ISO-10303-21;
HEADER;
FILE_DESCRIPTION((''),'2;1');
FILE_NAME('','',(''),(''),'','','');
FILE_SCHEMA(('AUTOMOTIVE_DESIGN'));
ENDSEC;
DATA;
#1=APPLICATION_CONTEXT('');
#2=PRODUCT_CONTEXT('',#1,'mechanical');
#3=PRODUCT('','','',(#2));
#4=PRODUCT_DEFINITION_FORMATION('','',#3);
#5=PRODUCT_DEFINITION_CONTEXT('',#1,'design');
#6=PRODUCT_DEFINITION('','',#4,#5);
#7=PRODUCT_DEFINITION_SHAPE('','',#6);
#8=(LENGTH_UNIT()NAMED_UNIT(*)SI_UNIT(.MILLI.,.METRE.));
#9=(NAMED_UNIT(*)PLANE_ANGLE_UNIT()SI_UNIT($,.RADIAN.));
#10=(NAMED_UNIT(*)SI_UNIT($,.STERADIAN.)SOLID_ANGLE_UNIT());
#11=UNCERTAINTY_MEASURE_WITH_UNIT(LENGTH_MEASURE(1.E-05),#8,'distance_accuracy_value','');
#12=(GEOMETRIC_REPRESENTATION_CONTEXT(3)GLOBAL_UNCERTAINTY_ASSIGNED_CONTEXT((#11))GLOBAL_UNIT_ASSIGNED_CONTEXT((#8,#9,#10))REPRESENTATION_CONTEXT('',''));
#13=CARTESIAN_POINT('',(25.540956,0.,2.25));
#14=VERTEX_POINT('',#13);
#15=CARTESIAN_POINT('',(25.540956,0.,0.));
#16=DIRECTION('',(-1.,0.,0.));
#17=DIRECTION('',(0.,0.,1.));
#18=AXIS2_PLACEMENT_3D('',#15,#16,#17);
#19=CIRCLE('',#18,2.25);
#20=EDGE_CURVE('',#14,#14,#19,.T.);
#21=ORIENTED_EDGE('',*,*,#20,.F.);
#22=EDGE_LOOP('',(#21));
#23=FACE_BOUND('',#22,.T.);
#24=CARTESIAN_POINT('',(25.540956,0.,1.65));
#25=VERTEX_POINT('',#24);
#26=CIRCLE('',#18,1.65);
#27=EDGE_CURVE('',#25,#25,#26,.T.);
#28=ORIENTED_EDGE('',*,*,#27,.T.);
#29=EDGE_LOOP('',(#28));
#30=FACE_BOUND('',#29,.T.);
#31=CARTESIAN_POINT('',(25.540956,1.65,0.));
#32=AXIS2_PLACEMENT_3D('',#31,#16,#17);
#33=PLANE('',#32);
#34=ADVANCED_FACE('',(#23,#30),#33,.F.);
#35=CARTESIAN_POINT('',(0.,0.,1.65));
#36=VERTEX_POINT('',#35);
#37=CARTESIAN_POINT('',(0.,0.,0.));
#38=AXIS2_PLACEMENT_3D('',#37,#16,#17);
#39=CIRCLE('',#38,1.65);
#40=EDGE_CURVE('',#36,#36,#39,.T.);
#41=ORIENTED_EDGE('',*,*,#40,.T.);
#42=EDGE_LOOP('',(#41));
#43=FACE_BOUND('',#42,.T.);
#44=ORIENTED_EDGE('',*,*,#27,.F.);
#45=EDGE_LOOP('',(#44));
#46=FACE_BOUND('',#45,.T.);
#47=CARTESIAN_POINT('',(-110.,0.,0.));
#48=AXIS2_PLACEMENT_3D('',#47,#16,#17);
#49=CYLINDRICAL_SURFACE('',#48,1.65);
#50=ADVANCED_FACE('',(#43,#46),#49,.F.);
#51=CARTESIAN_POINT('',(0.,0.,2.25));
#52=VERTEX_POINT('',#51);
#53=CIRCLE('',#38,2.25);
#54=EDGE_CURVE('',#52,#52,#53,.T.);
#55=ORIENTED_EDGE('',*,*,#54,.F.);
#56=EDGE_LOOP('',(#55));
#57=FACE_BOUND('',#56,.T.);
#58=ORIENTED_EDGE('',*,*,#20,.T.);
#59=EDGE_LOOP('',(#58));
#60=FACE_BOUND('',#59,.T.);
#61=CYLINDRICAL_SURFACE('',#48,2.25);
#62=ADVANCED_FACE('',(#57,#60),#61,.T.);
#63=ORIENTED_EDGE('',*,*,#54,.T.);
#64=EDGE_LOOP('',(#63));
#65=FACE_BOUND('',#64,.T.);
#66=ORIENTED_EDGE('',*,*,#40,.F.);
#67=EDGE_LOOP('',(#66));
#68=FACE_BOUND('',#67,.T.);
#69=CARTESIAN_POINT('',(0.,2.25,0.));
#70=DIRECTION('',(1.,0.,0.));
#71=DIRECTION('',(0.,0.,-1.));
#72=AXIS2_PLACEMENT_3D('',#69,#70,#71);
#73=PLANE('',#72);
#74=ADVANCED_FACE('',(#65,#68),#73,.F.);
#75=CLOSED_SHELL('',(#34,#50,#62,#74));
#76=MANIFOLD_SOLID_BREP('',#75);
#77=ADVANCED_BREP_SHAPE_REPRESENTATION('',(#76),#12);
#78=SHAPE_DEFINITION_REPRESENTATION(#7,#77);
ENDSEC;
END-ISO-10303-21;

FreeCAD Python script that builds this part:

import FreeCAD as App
import Part
import Sketcher
from FreeCAD import Vector


def add_polygon(sketch, points):
    """Adds a closed chain of lines whose ends are joined by coincident constraints."""
    first, n = sketch.GeometryCount, len(points)
    for a, b in zip(points, points[1:] + points[:1]):
        sketch.addGeometry(Part.LineSegment(App.Vector(*a, 0), App.Vector(*b, 0)), False)
    for i in range(n):
        sketch.addConstraint(Sketcher.Constraint("Coincident", first + i, 2, first + (i + 1) % n, 1))

doc = App.newDocument("Part")
params = doc.addObject("Spreadsheet::Sheet", "Params")
for row, (alias, value) in enumerate([
    ("sketch1_height", "0.6 mm"),
    ("revolution_angle", "360 deg"),
], start=1):
    params.set(f"A{row}", alias)
    params.set(f"B{row}", "=" + value)
    params.setAlias(f"B{row}", alias)

body = doc.addObject("PartDesign::Body", "Body")

sketch1 = doc.addObject("Sketcher::SketchObject", "Sketch")
body.addObject(sketch1)
sketch1.AttachmentSupport = (doc.XY_Plane, [""])
sketch1.MapMode = "FlatFace"
add_polygon(sketch1, [(0, 2.2), (0, 1.6), (25.5, 1.6), (25.5, 2.2)])
sketch1.addConstraint([
    Sketcher.Constraint("Vertical", 0),
    Sketcher.Constraint("Horizontal", 1),
    Sketcher.Constraint("Vertical", 2),
    Sketcher.Constraint("Horizontal", 3),
    Sketcher.Constraint("PointOnObject", 0, 2, -2),
    Sketcher.Constraint("DistanceY", 0, 2, 0, 1, 0.6),
    Sketcher.Constraint("DistanceY", -1, 1, 0, 2, 1.65),
    Sketcher.Constraint("DistanceX", 1, 1, 1, 2, 25.540956),
])
sketch1.setExpression("Constraints[9]", "Params.sketch1_height")
revolution = doc.addObject("PartDesign::Revolution", "Revolution")
body.addObject(revolution)
revolution.Profile = sketch1
revolution.ReferenceAxis = (sketch1, ["H_Axis"])
revolution.setExpression("Angle", "Params.revolution_angle")

doc.recompute()
